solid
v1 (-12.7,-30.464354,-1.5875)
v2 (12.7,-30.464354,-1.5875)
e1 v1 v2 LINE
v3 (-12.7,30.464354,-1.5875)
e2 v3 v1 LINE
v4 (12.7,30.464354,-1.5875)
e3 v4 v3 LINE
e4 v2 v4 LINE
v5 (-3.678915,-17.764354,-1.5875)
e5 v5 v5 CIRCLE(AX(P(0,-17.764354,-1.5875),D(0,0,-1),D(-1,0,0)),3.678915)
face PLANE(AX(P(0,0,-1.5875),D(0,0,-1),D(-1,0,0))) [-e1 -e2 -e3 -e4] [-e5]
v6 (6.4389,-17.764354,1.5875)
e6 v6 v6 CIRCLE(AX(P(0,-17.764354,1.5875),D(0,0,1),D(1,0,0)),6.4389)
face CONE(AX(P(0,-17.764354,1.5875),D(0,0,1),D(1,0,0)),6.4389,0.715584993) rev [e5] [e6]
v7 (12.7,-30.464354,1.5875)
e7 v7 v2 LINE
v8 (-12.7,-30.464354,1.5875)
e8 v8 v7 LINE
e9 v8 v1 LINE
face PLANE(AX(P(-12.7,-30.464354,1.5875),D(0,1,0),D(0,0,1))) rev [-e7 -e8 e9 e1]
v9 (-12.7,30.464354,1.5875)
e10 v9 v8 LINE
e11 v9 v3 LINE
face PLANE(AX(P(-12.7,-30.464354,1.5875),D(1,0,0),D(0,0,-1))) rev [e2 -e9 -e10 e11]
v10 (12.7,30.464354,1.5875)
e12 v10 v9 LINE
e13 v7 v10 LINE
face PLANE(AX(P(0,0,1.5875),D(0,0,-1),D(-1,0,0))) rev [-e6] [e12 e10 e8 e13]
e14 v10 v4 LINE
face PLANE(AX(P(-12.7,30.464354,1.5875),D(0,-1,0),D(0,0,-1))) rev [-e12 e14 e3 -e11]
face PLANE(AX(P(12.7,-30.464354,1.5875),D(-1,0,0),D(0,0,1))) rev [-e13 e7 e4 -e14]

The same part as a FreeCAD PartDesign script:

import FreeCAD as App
import Part
import Sketcher
Q = App.Units.Quantity


def add_polygon(sketch, points):
    """Adds a closed chain of lines whose ends are joined by coincident constraints."""
    first, n = sketch.GeometryCount, len(points)
    for a, b in zip(points, points[1:] + points[:1]):
        sketch.addGeometry(Part.LineSegment(App.Vector(*a, 0), App.Vector(*b, 0)), False)
    for i in range(n):
        sketch.addConstraint(Sketcher.Constraint("Coincident", first + i, 2, first + (i + 1) % n, 1))

doc = App.newDocument("Part")
body = doc.addObject("PartDesign::Body", "Body")

sketch1 = doc.addObject("Sketcher::SketchObject", "Sketch")
body.addObject(sketch1)
sketch1.AttachmentSupport = (doc.XY_Plane, [""])
sketch1.MapMode = "FlatFace"
add_polygon(sketch1, [(-13, 30), (-13, -30), (13, -30), (13, 30)])
sketch1.addConstraint([
    Sketcher.Constraint("Vertical", 0),
    Sketcher.Constraint("Horizontal", 1),
    Sketcher.Constraint("Vertical", 2),
    Sketcher.Constraint("Horizontal", 3),
    Sketcher.Constraint("Symmetric", 0, 2, 2, 2, -1, 1),
    Sketcher.Constraint("DistanceX", 1, 1, 1, 2, Q("1 in")),
    Sketcher.Constraint("DistanceY", 0, 2, 0, 1, Q("60.928707 mm")),
])
pad1 = doc.addObject("PartDesign::Pad", "Pad")
body.addObject(pad1)
pad1.Profile = sketch1
pad1.Length = Q("0.125 in")
pad1.Midplane = True

sketch2 = doc.addObject("Sketcher::SketchObject", "Sketch001")
body.addObject(sketch2)
sketch2.AttachmentSupport = (doc.YZ_Plane, [""])
sketch2.MapMode = "FlatFace"
add_polygon(sketch2, [(-17.76, -1.59), (-17.76, 1.59), (-24.2, 1.59), (-21.14, -1.93), (-21.14, -1.59)])
sketch2.addGeometry(Part.LineSegment(App.Vector(-17.76, 1.59, 0), App.Vector(-17.76, -1.93, 0)), True)
sketch2.addConstraint([
    Sketcher.Constraint("Vertical", 0),
    Sketcher.Constraint("Horizontal", 1),
    Sketcher.Constraint("Vertical", 3),
    Sketcher.Constraint("Horizontal", 4),
    Sketcher.Constraint("Vertical", 5),
    Sketcher.Constraint("Coincident", 5, 1, 0, 2),
    Sketcher.Constraint("Horizontal", 2, 2, 5, 2),
    Sketcher.Constraint("Angle", 2, Q("-49 deg")),
    Sketcher.Constraint("DistanceX", 4, 1, 4, 2, Q("0.133 in")),
    Sketcher.Constraint("DistanceY", 0, 1, 0, 2, Q("0.125 in")),
    Sketcher.Constraint("DistanceX", 1, 2, 1, 1, Q("0.2535 in")),
    Sketcher.Constraint("DistanceY", -1, 1, 0, 2, Q("0.0625 in")),
    Sketcher.Constraint("DistanceX", 0, 2, -1, 1, Q("17.764354 mm")),
])
groove = doc.addObject("PartDesign::Groove", "Groove")
body.addObject(groove)
groove.Profile = sketch2
groove.ReferenceAxis = (sketch2, ["Axis0"])
groove.Angle = 360

doc.recompute()
